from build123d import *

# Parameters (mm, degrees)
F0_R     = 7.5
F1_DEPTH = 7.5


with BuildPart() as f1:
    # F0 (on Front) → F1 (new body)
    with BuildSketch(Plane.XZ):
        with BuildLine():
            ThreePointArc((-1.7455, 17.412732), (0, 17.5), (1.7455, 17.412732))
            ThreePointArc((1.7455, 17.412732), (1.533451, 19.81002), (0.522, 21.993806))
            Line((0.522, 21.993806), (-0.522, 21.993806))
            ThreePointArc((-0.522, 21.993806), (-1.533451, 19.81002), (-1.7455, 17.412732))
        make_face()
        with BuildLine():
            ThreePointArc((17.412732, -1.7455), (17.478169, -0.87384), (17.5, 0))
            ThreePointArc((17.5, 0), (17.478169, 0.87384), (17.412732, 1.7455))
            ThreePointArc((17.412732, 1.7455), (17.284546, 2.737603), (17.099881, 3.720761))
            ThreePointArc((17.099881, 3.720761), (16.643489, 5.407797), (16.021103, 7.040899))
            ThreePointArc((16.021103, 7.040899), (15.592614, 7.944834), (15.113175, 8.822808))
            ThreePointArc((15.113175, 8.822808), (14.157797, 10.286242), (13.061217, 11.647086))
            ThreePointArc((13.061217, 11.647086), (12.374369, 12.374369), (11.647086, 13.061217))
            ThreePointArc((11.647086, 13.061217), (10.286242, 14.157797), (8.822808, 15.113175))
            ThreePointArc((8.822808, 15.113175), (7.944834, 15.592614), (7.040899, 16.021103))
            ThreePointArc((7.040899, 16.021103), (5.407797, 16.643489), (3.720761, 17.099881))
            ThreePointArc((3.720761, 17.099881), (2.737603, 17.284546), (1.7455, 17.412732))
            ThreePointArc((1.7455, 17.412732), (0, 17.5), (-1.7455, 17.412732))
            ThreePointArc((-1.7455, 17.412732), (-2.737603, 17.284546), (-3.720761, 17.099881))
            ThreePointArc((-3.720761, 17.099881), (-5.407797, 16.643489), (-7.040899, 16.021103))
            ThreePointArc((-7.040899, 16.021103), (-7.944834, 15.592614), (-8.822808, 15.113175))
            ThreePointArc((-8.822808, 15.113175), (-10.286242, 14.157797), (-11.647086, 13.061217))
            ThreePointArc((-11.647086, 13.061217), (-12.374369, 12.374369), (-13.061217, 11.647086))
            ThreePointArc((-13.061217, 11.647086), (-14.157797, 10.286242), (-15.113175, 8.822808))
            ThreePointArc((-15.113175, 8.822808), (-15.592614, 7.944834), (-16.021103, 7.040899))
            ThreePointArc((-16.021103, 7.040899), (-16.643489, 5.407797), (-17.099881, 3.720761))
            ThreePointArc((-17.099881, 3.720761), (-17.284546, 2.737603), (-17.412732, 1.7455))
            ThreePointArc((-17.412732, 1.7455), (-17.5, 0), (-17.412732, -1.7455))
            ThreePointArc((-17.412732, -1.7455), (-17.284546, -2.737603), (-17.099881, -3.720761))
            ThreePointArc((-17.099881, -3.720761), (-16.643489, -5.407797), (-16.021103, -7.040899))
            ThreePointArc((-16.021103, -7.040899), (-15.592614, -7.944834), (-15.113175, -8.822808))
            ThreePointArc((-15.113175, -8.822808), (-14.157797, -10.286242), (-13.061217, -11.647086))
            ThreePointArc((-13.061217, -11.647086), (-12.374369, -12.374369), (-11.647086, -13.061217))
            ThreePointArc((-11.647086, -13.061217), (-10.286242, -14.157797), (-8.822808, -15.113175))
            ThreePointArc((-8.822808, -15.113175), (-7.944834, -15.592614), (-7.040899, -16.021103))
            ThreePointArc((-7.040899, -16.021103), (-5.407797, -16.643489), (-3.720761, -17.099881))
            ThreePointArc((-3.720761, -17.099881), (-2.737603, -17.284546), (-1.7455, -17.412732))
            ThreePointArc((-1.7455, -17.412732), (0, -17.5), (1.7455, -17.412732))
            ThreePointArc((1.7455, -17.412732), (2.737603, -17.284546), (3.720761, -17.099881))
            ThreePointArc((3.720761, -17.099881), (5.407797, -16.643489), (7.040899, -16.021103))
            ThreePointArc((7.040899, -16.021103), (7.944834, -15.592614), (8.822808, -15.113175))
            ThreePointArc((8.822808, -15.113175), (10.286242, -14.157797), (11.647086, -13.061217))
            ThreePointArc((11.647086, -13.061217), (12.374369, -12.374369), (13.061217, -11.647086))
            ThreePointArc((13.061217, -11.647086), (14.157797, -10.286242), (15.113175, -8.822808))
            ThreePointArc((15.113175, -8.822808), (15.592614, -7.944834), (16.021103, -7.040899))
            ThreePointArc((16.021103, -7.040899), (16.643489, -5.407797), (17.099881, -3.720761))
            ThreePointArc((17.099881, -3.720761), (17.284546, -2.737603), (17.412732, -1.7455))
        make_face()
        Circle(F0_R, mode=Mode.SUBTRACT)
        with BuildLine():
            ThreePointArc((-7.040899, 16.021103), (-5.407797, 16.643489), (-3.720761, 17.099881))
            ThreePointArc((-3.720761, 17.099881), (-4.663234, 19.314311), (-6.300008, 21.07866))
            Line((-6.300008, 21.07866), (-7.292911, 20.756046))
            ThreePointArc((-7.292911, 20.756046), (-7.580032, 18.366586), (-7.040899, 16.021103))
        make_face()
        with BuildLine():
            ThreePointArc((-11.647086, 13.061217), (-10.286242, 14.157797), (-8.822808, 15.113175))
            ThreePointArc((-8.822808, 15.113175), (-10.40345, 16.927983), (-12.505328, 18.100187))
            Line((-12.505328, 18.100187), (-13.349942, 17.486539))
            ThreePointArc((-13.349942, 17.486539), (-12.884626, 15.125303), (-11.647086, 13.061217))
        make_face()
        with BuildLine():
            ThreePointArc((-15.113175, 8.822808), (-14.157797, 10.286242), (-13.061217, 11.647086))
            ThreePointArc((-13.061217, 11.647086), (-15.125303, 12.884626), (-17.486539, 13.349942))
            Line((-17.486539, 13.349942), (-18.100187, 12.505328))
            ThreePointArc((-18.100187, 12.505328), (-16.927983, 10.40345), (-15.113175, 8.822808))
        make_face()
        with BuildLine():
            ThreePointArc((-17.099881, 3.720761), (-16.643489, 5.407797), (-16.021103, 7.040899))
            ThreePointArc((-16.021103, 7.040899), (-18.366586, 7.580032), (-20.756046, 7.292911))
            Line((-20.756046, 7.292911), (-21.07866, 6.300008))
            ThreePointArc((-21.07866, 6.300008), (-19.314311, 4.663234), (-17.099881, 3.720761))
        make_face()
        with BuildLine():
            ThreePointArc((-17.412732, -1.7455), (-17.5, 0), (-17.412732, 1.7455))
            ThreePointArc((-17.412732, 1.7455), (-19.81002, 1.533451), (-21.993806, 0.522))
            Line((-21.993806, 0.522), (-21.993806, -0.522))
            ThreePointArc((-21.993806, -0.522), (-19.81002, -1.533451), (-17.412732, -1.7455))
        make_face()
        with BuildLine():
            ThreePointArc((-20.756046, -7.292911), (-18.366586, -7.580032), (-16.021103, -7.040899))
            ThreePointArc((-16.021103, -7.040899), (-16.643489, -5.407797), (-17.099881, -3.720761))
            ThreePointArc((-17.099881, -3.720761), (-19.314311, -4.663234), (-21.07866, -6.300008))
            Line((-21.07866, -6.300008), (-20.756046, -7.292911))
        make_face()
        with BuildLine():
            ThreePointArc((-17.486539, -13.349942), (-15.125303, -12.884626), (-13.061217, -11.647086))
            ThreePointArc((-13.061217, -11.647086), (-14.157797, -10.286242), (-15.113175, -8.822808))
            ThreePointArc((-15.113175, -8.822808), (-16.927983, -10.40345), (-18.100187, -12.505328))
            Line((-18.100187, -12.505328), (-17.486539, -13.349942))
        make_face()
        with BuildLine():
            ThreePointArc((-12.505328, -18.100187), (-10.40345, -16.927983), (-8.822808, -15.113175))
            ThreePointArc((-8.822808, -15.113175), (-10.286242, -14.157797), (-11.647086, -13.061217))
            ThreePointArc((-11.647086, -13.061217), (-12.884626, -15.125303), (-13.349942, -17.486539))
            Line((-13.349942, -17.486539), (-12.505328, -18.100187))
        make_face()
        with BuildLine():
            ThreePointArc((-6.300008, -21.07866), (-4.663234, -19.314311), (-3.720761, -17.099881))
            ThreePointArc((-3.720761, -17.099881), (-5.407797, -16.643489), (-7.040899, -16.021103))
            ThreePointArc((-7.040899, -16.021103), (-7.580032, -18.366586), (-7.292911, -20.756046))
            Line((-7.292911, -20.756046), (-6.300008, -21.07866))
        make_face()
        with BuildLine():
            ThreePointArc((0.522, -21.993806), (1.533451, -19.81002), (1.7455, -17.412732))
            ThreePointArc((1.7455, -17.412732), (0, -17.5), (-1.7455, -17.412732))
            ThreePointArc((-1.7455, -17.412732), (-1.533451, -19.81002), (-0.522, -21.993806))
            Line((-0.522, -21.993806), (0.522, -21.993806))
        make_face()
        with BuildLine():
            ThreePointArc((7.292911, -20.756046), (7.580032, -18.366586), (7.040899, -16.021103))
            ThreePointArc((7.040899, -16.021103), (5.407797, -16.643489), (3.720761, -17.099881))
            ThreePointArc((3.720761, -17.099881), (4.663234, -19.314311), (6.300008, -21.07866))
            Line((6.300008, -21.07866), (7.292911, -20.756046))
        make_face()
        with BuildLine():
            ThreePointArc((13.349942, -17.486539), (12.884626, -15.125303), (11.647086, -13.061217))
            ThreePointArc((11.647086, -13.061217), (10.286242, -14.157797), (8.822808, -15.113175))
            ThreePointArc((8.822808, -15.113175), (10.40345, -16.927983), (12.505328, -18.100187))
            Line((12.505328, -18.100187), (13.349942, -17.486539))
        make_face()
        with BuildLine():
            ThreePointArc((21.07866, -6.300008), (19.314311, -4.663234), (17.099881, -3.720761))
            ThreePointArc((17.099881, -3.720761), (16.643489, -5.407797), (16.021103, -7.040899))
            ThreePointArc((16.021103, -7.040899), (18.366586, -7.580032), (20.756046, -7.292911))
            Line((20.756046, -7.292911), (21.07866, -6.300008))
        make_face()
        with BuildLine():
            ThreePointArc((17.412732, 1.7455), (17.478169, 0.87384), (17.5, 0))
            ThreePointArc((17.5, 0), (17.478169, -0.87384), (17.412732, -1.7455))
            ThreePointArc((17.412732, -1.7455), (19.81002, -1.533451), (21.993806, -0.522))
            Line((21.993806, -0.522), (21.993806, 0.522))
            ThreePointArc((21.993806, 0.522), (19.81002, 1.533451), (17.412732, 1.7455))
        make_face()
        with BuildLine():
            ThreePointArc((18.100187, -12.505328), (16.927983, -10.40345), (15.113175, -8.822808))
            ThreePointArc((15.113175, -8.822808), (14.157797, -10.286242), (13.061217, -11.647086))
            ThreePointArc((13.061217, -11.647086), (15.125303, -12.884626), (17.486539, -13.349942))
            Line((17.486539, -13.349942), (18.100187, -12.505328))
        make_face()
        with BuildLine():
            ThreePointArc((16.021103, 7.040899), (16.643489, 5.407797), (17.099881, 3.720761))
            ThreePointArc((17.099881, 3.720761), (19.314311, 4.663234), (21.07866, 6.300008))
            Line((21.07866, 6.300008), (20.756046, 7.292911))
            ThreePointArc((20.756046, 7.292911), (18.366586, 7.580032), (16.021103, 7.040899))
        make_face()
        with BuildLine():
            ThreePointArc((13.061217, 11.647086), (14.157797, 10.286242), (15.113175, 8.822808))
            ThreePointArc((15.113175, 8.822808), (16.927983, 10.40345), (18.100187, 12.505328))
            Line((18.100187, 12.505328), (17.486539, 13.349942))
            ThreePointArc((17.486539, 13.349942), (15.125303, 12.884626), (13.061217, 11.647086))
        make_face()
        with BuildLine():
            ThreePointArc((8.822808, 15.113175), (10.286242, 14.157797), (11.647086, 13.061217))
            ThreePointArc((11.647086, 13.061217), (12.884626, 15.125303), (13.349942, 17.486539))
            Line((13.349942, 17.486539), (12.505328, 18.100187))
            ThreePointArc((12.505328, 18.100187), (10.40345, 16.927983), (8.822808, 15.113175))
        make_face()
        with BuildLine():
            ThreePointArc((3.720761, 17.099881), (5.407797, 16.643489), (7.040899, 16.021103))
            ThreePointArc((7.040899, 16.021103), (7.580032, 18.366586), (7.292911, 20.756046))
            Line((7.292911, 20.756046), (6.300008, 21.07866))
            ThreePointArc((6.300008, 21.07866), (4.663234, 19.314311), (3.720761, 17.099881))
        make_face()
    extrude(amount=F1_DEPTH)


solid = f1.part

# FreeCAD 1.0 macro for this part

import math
import FreeCAD as App
import Part
import Sketcher
Q = App.Units.Quantity

doc = App.newDocument("Part")
body = doc.addObject("PartDesign::Body", "Body")

sketch1 = body.newObject("Sketcher::SketchObject", "Sketch")
sketch1.AttachmentSupport = (doc.getObject("XZ_Plane"), [""])
sketch1.MapMode = "FlatFace"
sketch1.addGeometry([
    Part.ArcOfCircle(Part.Circle(App.Vector(-5.229505, 18.003789, 0), App.Vector(0, 0, 1), 7.000003), math.radians(-4.843634), math.radians(34.750375)),
    Part.LineSegment(App.Vector(0.522, 21.993806, 0), App.Vector(-0.522, 21.993806, 0)),
    Part.ArcOfCircle(Part.Circle(App.Vector(5.229505, 18.003789, 0), App.Vector(0, 0, 1), 7.000003), math.radians(145.249625), math.radians(184.843634)),
    Part.ArcOfCircle(Part.Circle(App.Vector(0, 0.000023, 0), App.Vector(0, 0, 1), 17.499977), math.radians(95.72437), math.radians(102.275652)),
    Part.ArcOfCircle(Part.Circle(App.Vector(-10.537033, 15.506616, 0), App.Vector(0, 0, 1), 7.000004), math.radians(13.156356), math.radians(52.750364)),
    Part.LineSegment(App.Vector(-6.300008, 21.07866, 0), App.Vector(-7.292911, 20.756046, 0)),
    Part.ArcOfCircle(Part.Circle(App.Vector(-0.589936, 18.738626, 0), App.Vector(0, 0, 1), 6.99999), math.radians(163.249583), math.radians(202.843674)),
    Part.ArcOfCircle(Part.Circle(App.Vector(0.00001, -0.000018, 0), App.Vector(0, 0, 1), 17.500021), math.radians(113.724367), math.radians(120.275634)),
    Part.ArcOfCircle(Part.Circle(App.Vector(-14.813121, 11.491546, 0), App.Vector(0, 0, 1), 7.000003), math.radians(31.156359), math.radians(70.750371)),
    Part.LineSegment(App.Vector(-12.505328, 18.100187, 0), App.Vector(-13.349942, 17.486539, 0)),
    Part.ArcOfCircle(Part.Circle(App.Vector(-6.35161, 17.639196, 0), App.Vector(0, 0, 1), 6.999997), math.radians(-178.750387), math.radians(-139.156341)),
    Part.ArcOfCircle(Part.Circle(App.Vector(-0.000179, 0.000179, 0), App.Vector(0, 0, 1), 17.499747), math.radians(131.724315), math.radians(138.275685)),
    Part.ArcOfCircle(Part.Circle(App.Vector(-17.639196, 6.35161, 0), App.Vector(0, 0, 1), 6.999997), math.radians(49.156341), math.radians(88.750387)),
    Part.LineSegment(App.Vector(-17.486539, 13.349942, 0), App.Vector(-18.100187, 12.505328, 0)),
    Part.ArcOfCircle(Part.Circle(App.Vector(-11.491546, 14.813121, 0), App.Vector(0, 0, 1), 7.000003), math.radians(-160.750371), math.radians(-121.156359)),
    Part.ArcOfCircle(Part.Circle(App.Vector(0.000018, -0.00001, 0), App.Vector(0, 0, 1), 17.500021), math.radians(149.724366), math.radians(156.275633)),
    Part.ArcOfCircle(Part.Circle(App.Vector(-18.738626, 0.589936, 0), App.Vector(0, 0, 1), 6.99999), math.radians(67.156326), math.radians(106.750417)),
    Part.LineSegment(App.Vector(-20.756046, 7.292911, 0), App.Vector(-21.07866, 6.300008, 0)),
    Part.ArcOfCircle(Part.Circle(App.Vector(-15.506616, 10.537033, 0), App.Vector(0, 0, 1), 7.000004), math.radians(-142.750364), math.radians(-103.156356)),
    Part.ArcOfCircle(Part.Circle(App.Vector(-0.000023, 0, 0), App.Vector(0, 0, 1), 17.499977), math.radians(167.724348), math.radians(174.27563)),
    Part.ArcOfCircle(Part.Circle(App.Vector(-18.003789, -5.229505, 0), App.Vector(0, 0, 1), 7.000003), math.radians(85.156366), math.radians(124.750375)),
    Part.LineSegment(App.Vector(-21.993806, 0.522, 0), App.Vector(-21.993806, -0.522, 0)),
    Part.ArcOfCircle(Part.Circle(App.Vector(-18.003789, 5.229505, 0), App.Vector(0, 0, 1), 7.000003), math.radians(-124.750375), math.radians(-85.156366)),
    Part.ArcOfCircle(Part.Circle(App.Vector(-0.000023, 0, 0), App.Vector(0, 0, 1), 17.499977), math.radians(-174.27563), math.radians(-167.724348)),
    Part.ArcOfCircle(Part.Circle(App.Vector(-15.506616, -10.537033, 0), App.Vector(0, 0, 1), 7.000004), math.radians(103.156356), math.radians(142.750364)),
    Part.LineSegment(App.Vector(-21.07866, -6.300008, 0), App.Vector(-20.756046, -7.292911, 0)),
    Part.ArcOfCircle(Part.Circle(App.Vector(-18.738626, -0.589936, 0), App.Vector(0, 0, 1), 6.99999), math.radians(-106.750417), math.radians(-67.156326)),
    Part.ArcOfCircle(Part.Circle(App.Vector(0.000018, 0.00001, 0), App.Vector(0, 0, 1), 17.500021), math.radians(-156.275633), math.radians(-149.724366)),
    Part.ArcOfCircle(Part.Circle(App.Vector(-11.491546, -14.813121, 0), App.Vector(0, 0, 1), 7.000003), math.radians(121.156359), math.radians(160.750371)),
    Part.LineSegment(App.Vector(-18.100187, -12.505328, 0), App.Vector(-17.486539, -13.349942, 0)),
    Part.ArcOfCircle(Part.Circle(App.Vector(-17.639196, -6.35161, 0), App.Vector(0, 0, 1), 6.999997), math.radians(-88.750387), math.radians(-49.156341)),
    Part.ArcOfCircle(Part.Circle(App.Vector(-0.000179, -0.000179, 0), App.Vector(0, 0, 1), 17.499747), math.radians(-138.275685), math.radians(-131.724315)),
    Part.ArcOfCircle(Part.Circle(App.Vector(-6.35161, -17.639196, 0), App.Vector(0, 0, 1), 6.999997), math.radians(139.156341), math.radians(178.750387)),
    Part.LineSegment(App.Vector(-13.349942, -17.486539, 0), App.Vector(-12.505328, -18.100187, 0)),
    Part.ArcOfCircle(Part.Circle(App.Vector(-14.813121, -11.491546, 0), App.Vector(0, 0, 1), 7.000003), math.radians(-70.750371), math.radians(-31.156359)),
    Part.ArcOfCircle(Part.Circle(App.Vector(0.00001, 0.000018, 0), App.Vector(0, 0, 1), 17.500021), math.radians(-120.275634), math.radians(-113.724367)),
    Part.ArcOfCircle(Part.Circle(App.Vector(-0.589936, -18.738626, 0), App.Vector(0, 0, 1), 6.99999), math.radians(157.156326), math.radians(196.750417)),
    Part.LineSegment(App.Vector(-7.292911, -20.756046, 0), App.Vector(-6.300008, -21.07866, 0)),
    Part.ArcOfCircle(Part.Circle(App.Vector(-10.537033, -15.506616, 0), App.Vector(0, 0, 1), 7.000004), math.radians(-52.750364), math.radians(-13.156356)),
    Part.ArcOfCircle(Part.Circle(App.Vector(0, -0.000023, 0), App.Vector(0, 0, 1), 17.499977), math.radians(-102.275652), math.radians(-95.72437)),
    Part.ArcOfCircle(Part.Circle(App.Vector(5.229505, -18.003789, 0), App.Vector(0, 0, 1), 7.000003), math.radians(175.156366), math.radians(214.750375)),
    Part.LineSegment(App.Vector(-0.522, -21.993806, 0), App.Vector(0.522, -21.993806, 0)),
    Part.ArcOfCircle(Part.Circle(App.Vector(-5.229505, -18.003789, 0), App.Vector(0, 0, 1), 7.000003), math.radians(-34.750375), math.radians(4.843634)),
    Part.ArcOfCircle(Part.Circle(App.Vector(0, -0.000023, 0), App.Vector(0, 0, 1), 17.499977), math.radians(-84.27563), math.radians(-77.724348)),
    Part.ArcOfCircle(Part.Circle(App.Vector(10.537033, -15.506616, 0), App.Vector(0, 0, 1), 7.000004), math.radians(-166.843644), math.radians(-127.249636)),
    Part.LineSegment(App.Vector(6.300008, -21.07866, 0), App.Vector(7.292911, -20.756046, 0)),
    Part.ArcOfCircle(Part.Circle(App.Vector(0.589936, -18.738626, 0), App.Vector(0, 0, 1), 6.99999), math.radians(-16.750417), math.radians(22.843674)),
    Part.ArcOfCircle(Part.Circle(App.Vector(-0.00001, 0.000018, 0), App.Vector(0, 0, 1), 17.500021), math.radians(-66.275633), math.radians(-59.724366)),
    Part.ArcOfCircle(Part.Circle(App.Vector(14.813121, -11.491546, 0), App.Vector(0, 0, 1), 7.000003), math.radians(-148.843641), math.radians(-109.249629)),
    Part.LineSegment(App.Vector(12.505328, -18.100187, 0), App.Vector(13.349942, -17.486539, 0)),
    Part.ArcOfCircle(Part.Circle(App.Vector(6.35161, -17.639196, 0), App.Vector(0, 0, 1), 6.999997), math.radians(1.249613), math.radians(40.843659)),
    Part.ArcOfCircle(Part.Circle(App.Vector(0.000179, -0.000179, 0), App.Vector(0, 0, 1), 17.499747), math.radians(-48.275685), math.radians(-41.724315)),
    Part.ArcOfCircle(Part.Circle(App.Vector(17.639196, -6.35161, 0), App.Vector(0, 0, 1), 6.999997), math.radians(-130.843659), math.radians(-91.249613)),
    Part.LineSegment(App.Vector(17.486539, -13.349942, 0), App.Vector(18.100187, -12.505328, 0)),
    Part.ArcOfCircle(Part.Circle(App.Vector(11.491546, -14.813121, 0), App.Vector(0, 0, 1), 7.000003), math.radians(19.249629), math.radians(58.843641)),
    Part.ArcOfCircle(Part.Circle(App.Vector(-0.000018, 0.00001, 0), App.Vector(0, 0, 1), 17.500021), math.radians(-30.275634), math.radians(-23.724367)),
    Part.ArcOfCircle(Part.Circle(App.Vector(18.738626, -0.589936, 0), App.Vector(0, 0, 1), 6.99999), math.radians(-112.843674), math.radians(-73.249583)),
    Part.LineSegment(App.Vector(20.756046, -7.292911, 0), App.Vector(21.07866, -6.300008, 0)),
    Part.ArcOfCircle(Part.Circle(App.Vector(15.506616, -10.537033, 0), App.Vector(0, 0, 1), 7.000004), math.radians(37.249636), math.radians(76.843644)),
    Part.ArcOfCircle(Part.Circle(App.Vector(0.000023, 0, 0), App.Vector(0, 0, 1), 17.499977), math.radians(-12.275652), math.radians(-5.72437)),
    Part.ArcOfCircle(Part.Circle(App.Vector(18.003789, 5.229505, 0), App.Vector(0, 0, 1), 7.000003), math.radians(-94.843634), math.radians(-55.249625)),
    Part.LineSegment(App.Vector(21.993806, -0.522, 0), App.Vector(21.993806, 0.522, 0)),
    Part.ArcOfCircle(Part.Circle(App.Vector(18.003789, -5.229505, 0), App.Vector(0, 0, 1), 7.000003), math.radians(55.249625), math.radians(94.843634)),
    Part.ArcOfCircle(Part.Circle(App.Vector(0.000023, 0, 0), App.Vector(0, 0, 1), 17.499977), math.radians(5.72437), math.radians(12.275652)),
    Part.ArcOfCircle(Part.Circle(App.Vector(15.506616, 10.537033, 0), App.Vector(0, 0, 1), 7.000004), math.radians(-76.843644), math.radians(-37.249636)),
    Part.LineSegment(App.Vector(21.07866, 6.300008, 0), App.Vector(20.756046, 7.292911, 0)),
    Part.ArcOfCircle(Part.Circle(App.Vector(18.738626, 0.589936, 0), App.Vector(0, 0, 1), 6.99999), math.radians(73.249583), math.radians(112.843674)),
    Part.ArcOfCircle(Part.Circle(App.Vector(-0.000018, -0.00001, 0), App.Vector(0, 0, 1), 17.500021), math.radians(23.724367), math.radians(30.275634)),
    Part.ArcOfCircle(Part.Circle(App.Vector(11.491546, 14.813121, 0), App.Vector(0, 0, 1), 7.000003), math.radians(-58.843641), math.radians(-19.249629)),
    Part.LineSegment(App.Vector(18.100187, 12.505328, 0), App.Vector(17.486539, 13.349942, 0)),
    Part.ArcOfCircle(Part.Circle(App.Vector(17.639196, 6.35161, 0), App.Vector(0, 0, 1), 6.999997), math.radians(91.249613), math.radians(130.843659)),
    Part.ArcOfCircle(Part.Circle(App.Vector(0.000179, 0.000179, 0), App.Vector(0, 0, 1), 17.499747), math.radians(41.724315), math.radians(48.275685)),
    Part.ArcOfCircle(Part.Circle(App.Vector(6.35161, 17.639196, 0), App.Vector(0, 0, 1), 6.999997), math.radians(-40.843659), math.radians(-1.249613)),
    Part.LineSegment(App.Vector(13.349942, 17.486539, 0), App.Vector(12.505328, 18.100187, 0)),
    Part.ArcOfCircle(Part.Circle(App.Vector(14.813121, 11.491546, 0), App.Vector(0, 0, 1), 7.000003), math.radians(109.249629), math.radians(148.843641)),
    Part.ArcOfCircle(Part.Circle(App.Vector(-0.00001, -0.000018, 0), App.Vector(0, 0, 1), 17.500021), math.radians(59.724366), math.radians(66.275633)),
    Part.ArcOfCircle(Part.Circle(App.Vector(0.589936, 18.738626, 0), App.Vector(0, 0, 1), 6.99999), math.radians(-22.843674), math.radians(16.750417)),
    Part.LineSegment(App.Vector(7.292911, 20.756046, 0), App.Vector(6.300008, 21.07866, 0)),
    Part.ArcOfCircle(Part.Circle(App.Vector(10.537033, 15.506616, 0), App.Vector(0, 0, 1), 7.000004), math.radians(127.249636), math.radians(166.843644)),
    Part.ArcOfCircle(Part.Circle(App.Vector(0, 0.000023, 0), App.Vector(0, 0, 1), 17.499977), math.radians(77.724348), math.radians(84.27563)),
    Part.Circle(App.Vector(0, 0, 0), App.Vector(0, 0, 1), 7.5),
], False)
sketch1.addConstraint([
    Sketcher.Constraint("Coincident", 0, 2, 1, 1),
    Sketcher.Constraint("Coincident", 1, 2, 2, 1),
    Sketcher.Constraint("Coincident", 2, 2, 3, 1),
    Sketcher.Constraint("Coincident", 3, 2, 4, 1),
    Sketcher.Constraint("Coincident", 4, 2, 5, 1),
    Sketcher.Constraint("Coincident", 5, 2, 6, 1),
    Sketcher.Constraint("Coincident", 6, 2, 7, 1),
    Sketcher.Constraint("Coincident", 7, 2, 8, 1),
    Sketcher.Constraint("Coincident", 8, 2, 9, 1),
    Sketcher.Constraint("Coincident", 9, 2, 10, 1),
    Sketcher.Constraint("Coincident", 10, 2, 11, 1),
    Sketcher.Constraint("Coincident", 11, 2, 12, 1),
    Sketcher.Constraint("Coincident", 12, 2, 13, 1),
    Sketcher.Constraint("Coincident", 13, 2, 14, 1),
    Sketcher.Constraint("Coincident", 14, 2, 15, 1),
    Sketcher.Constraint("Coincident", 15, 2, 16, 1),
    Sketcher.Constraint("Coincident", 16, 2, 17, 1),
    Sketcher.Constraint("Coincident", 17, 2, 18, 1),
    Sketcher.Constraint("Coincident", 18, 2, 19, 1),
    Sketcher.Constraint("Coincident", 19, 2, 20, 1),
    Sketcher.Constraint("Coincident", 20, 2, 21, 1),
    Sketcher.Constraint("Coincident", 21, 2, 22, 1),
    Sketcher.Constraint("Coincident", 22, 2, 23, 1),
    Sketcher.Constraint("Coincident", 23, 2, 24, 1),
    Sketcher.Constraint("Coincident", 24, 2, 25, 1),
    Sketcher.Constraint("Coincident", 25, 2, 26, 1),
    Sketcher.Constraint("Coincident", 26, 2, 27, 1),
    Sketcher.Constraint("Coincident", 27, 2, 28, 1),
    Sketcher.Constraint("Coincident", 28, 2, 29, 1),
    Sketcher.Constraint("Coincident", 29, 2, 30, 1),
    Sketcher.Constraint("Coincident", 30, 2, 31, 1),
    Sketcher.Constraint("Coincident", 31, 2, 32, 1),
    Sketcher.Constraint("Coincident", 32, 2, 33, 1),
    Sketcher.Constraint("Coincident", 33, 2, 34, 1),
    Sketcher.Constraint("Coincident", 34, 2, 35, 1),
    Sketcher.Constraint("Coincident", 35, 2, 36, 1),
    Sketcher.Constraint("Coincident", 36, 2, 37, 1),
    Sketcher.Constraint("Coincident", 37, 2, 38, 1),
    Sketcher.Constraint("Coincident", 38, 2, 39, 1),
    Sketcher.Constraint("Coincident", 39, 2, 40, 1),
    Sketcher.Constraint("Coincident", 40, 2, 41, 1),
    Sketcher.Constraint("Coincident", 41, 2, 42, 1),
    Sketcher.Constraint("Coincident", 42, 2, 43, 1),
    Sketcher.Constraint("Coincident", 43, 2, 44, 1),
    Sketcher.Constraint("Coincident", 44, 2, 45, 1),
    Sketcher.Constraint("Coincident", 45, 2, 46, 1),
    Sketcher.Constraint("Coincident", 46, 2, 47, 1),
    Sketcher.Constraint("Coincident", 47, 2, 48, 1),
    Sketcher.Constraint("Coincident", 48, 2, 49, 1),
    Sketcher.Constraint("Coincident", 49, 2, 50, 1),
    Sketcher.Constraint("Coincident", 50, 2, 51, 1),
    Sketcher.Constraint("Coincident", 51, 2, 52, 1),
    Sketcher.Constraint("Coincident", 52, 2, 53, 1),
    Sketcher.Constraint("Coincident", 53, 2, 54, 1),
    Sketcher.Constraint("Coincident", 54, 2, 55, 1),
    Sketcher.Constraint("Coincident", 55, 2, 56, 1),
    Sketcher.Constraint("Coincident", 56, 2, 57, 1),
    Sketcher.Constraint("Coincident", 57, 2, 58, 1),
    Sketcher.Constraint("Coincident", 58, 2, 59, 1),
    Sketcher.Constraint("Coincident", 59, 2, 60, 1),
    Sketcher.Constraint("Coincident", 60, 2, 61, 1),
    Sketcher.Constraint("Coincident", 61, 2, 62, 1),
    Sketcher.Constraint("Coincident", 62, 2, 63, 1),
    Sketcher.Constraint("Coincident", 63, 2, 64, 1),
    Sketcher.Constraint("Coincident", 64, 2, 65, 1),
    Sketcher.Constraint("Coincident", 65, 2, 66, 1),
    Sketcher.Constraint("Coincident", 66, 2, 67, 1),
    Sketcher.Constraint("Coincident", 67, 2, 68, 1),
    Sketcher.Constraint("Coincident", 68, 2, 69, 1),
    Sketcher.Constraint("Coincident", 69, 2, 70, 1),
    Sketcher.Constraint("Coincident", 70, 2, 71, 1),
    Sketcher.Constraint("Coincident", 71, 2, 72, 1),
    Sketcher.Constraint("Coincident", 72, 2, 73, 1),
    Sketcher.Constraint("Coincident", 73, 2, 74, 1),
    Sketcher.Constraint("Coincident", 74, 2, 75, 1),
    Sketcher.Constraint("Coincident", 75, 2, 76, 1),
    Sketcher.Constraint("Coincident", 76, 2, 77, 1),
    Sketcher.Constraint("Coincident", 77, 2, 78, 1),
    Sketcher.Constraint("Coincident", 78, 2, 79, 1),
    Sketcher.Constraint("Coincident", 79, 2, 0, 1),
    Sketcher.Constraint("Horizontal", 1),
    Sketcher.Constraint("Vertical", 21),
    Sketcher.Constraint("Horizontal", 41),
    Sketcher.Constraint("Vertical", 61),
    Sketcher.Constraint("Coincident", 80, 3, -1, 1),
    Sketcher.Constraint("Coincident", 23, 3, 19, 3),
    Sketcher.Constraint("Coincident", 43, 3, 39, 3),
    Sketcher.Constraint("Coincident", 63, 3, 59, 3),
    Sketcher.Constraint("Coincident", 79, 3, 3, 3),
    Sketcher.Constraint("Equal", 0, 2),
    Sketcher.Constraint("Equal", 2, 4),
    Sketcher.Constraint("Equal", 4, 8),
    Sketcher.Constraint("Equal", 10, 12),
    Sketcher.Constraint("Equal", 8, 14),
    Sketcher.Constraint("Equal", 7, 15),
    Sketcher.Constraint("Equal", 6, 16),
    Sketcher.Constraint("Equal", 14, 18),
    Sketcher.Constraint("Equal", 3, 19),
    Sketcher.Constraint("Equal", 18, 20),
    Sketcher.Constraint("Equal", 20, 22),
    Sketcher.Constraint("Equal", 19, 23),
    Sketcher.Constraint("Equal", 22, 24),
    Sketcher.Constraint("Equal", 16, 26),
    Sketcher.Constraint("Equal", 15, 27),
    Sketcher.Constraint("Equal", 24, 28),
    Sketcher.Constraint("Equal", 12, 30),
    Sketcher.Constraint("Equal", 11, 31),
    Sketcher.Constraint("Equal", 30, 32),
    Sketcher.Constraint("Equal", 28, 34),
    Sketcher.Constraint("Equal", 27, 35),
    Sketcher.Constraint("Equal", 26, 36),
    Sketcher.Constraint("Equal", 34, 38),
    Sketcher.Constraint("Equal", 23, 39),
    Sketcher.Constraint("Equal", 38, 40),
    Sketcher.Constraint("Equal", 40, 42),
    Sketcher.Constraint("Equal", 39, 43),
    Sketcher.Constraint("Equal", 42, 44),
    Sketcher.Constraint("Equal", 36, 46),
    Sketcher.Constraint("Equal", 35, 47),
    Sketcher.Constraint("Equal", 44, 48),
    Sketcher.Constraint("Equal", 32, 50),
    Sketcher.Constraint("Equal", 31, 51),
    Sketcher.Constraint("Equal", 50, 52),
    Sketcher.Constraint("Equal", 48, 54),
    Sketcher.Constraint("Equal", 47, 55),
    Sketcher.Constraint("Equal", 46, 56),
    Sketcher.Constraint("Equal", 54, 58),
    Sketcher.Constraint("Equal", 43, 59),
    Sketcher.Constraint("Equal", 58, 60),
    Sketcher.Constraint("Equal", 60, 62),
    Sketcher.Constraint("Equal", 59, 63),
    Sketcher.Constraint("Equal", 62, 64),
    Sketcher.Constraint("Equal", 56, 66),
    Sketcher.Constraint("Equal", 55, 67),
    Sketcher.Constraint("Equal", 64, 68),
    Sketcher.Constraint("Equal", 52, 70),
    Sketcher.Constraint("Equal", 51, 71),
    Sketcher.Constraint("Equal", 70, 72),
    Sketcher.Constraint("Equal", 68, 74),
    Sketcher.Constraint("Equal", 67, 75),
    Sketcher.Constraint("Equal", 66, 76),
    Sketcher.Constraint("Equal", 74, 78),
    Sketcher.Constraint("Equal", 63, 79),
    Sketcher.Constraint("Symmetric", 3, 3, 39, 3, -1, 1),
    Sketcher.Constraint("Symmetric", 0, 3, 40, 3, -1, 1),
    Sketcher.Constraint("Symmetric", 2, 3, 42, 3, -1, 1),
    Sketcher.Constraint("Symmetric", 4, 3, 44, 3, -1, 1),
    Sketcher.Constraint("Symmetric", 6, 3, 46, 3, -1, 1),
    Sketcher.Constraint("Symmetric", 7, 3, 47, 3, -1, 1),
    Sketcher.Constraint("Symmetric", 8, 3, 48, 3, -1, 1),
    Sketcher.Constraint("Symmetric", 10, 3, 50, 3, -1, 1),
    Sketcher.Constraint("Symmetric", 11, 3, 51, 3, -1, 1),
    Sketcher.Constraint("Symmetric", 12, 3, 52, 3, -1, 1),
    Sketcher.Constraint("Symmetric", 14, 3, 54, 3, -1, 1),
    Sketcher.Constraint("Symmetric", 15, 3, 55, 3, -1, 1),
    Sketcher.Constraint("Symmetric", 16, 3, 56, 3, -1, 1),
    Sketcher.Constraint("Symmetric", 18, 3, 58, 3, -1, 1),
    Sketcher.Constraint("Symmetric", 19, 3, 59, 3, -1, 1),
    Sketcher.Constraint("Symmetric", 20, 3, 60, 3, -1, 1),
    Sketcher.Constraint("Symmetric", 22, 3, 62, 3, -1, 1),
    Sketcher.Constraint("Symmetric", 24, 3, 64, 3, -1, 1),
    Sketcher.Constraint("Symmetric", 26, 3, 66, 3, -1, 1),
    Sketcher.Constraint("Symmetric", 27, 3, 67, 3, -1, 1),
    Sketcher.Constraint("Symmetric", 28, 3, 68, 3, -1, 1),
    Sketcher.Constraint("Symmetric", 30, 3, 70, 3, -1, 1),
    Sketcher.Constraint("Symmetric", 31, 3, 71, 3, -1, 1),
    Sketcher.Constraint("Symmetric", 32, 3, 72, 3, -1, 1),
    Sketcher.Constraint("Symmetric", 34, 3, 74, 3, -1, 1),
    Sketcher.Constraint("Symmetric", 35, 3, 75, 3, -1, 1),
    Sketcher.Constraint("Symmetric", 36, 3, 76, 3, -1, 1),
    Sketcher.Constraint("Symmetric", 38, 3, 78, 3, -1, 1),
    Sketcher.Constraint("Symmetric", 0, 3, 2, 3, -2),
    Sketcher.Constraint("Symmetric", 38, 3, 44, 3, -2),
    Sketcher.Constraint("Symmetric", 36, 3, 46, 3, -2),
    Sketcher.Constraint("Symmetric", 35, 3, 47, 3, -2),
    Sketcher.Constraint("Symmetric", 34, 3, 48, 3, -2),
    Sketcher.Constraint("Symmetric", 32, 3, 50, 3, -2),
    Sketcher.Constraint("Symmetric", 31, 3, 51, 3, -2),
    Sketcher.Constraint("Symmetric", 30, 3, 52, 3, -2),
    Sketcher.Constraint("Symmetric", 28, 3, 54, 3, -2),
    Sketcher.Constraint("Symmetric", 27, 3, 55, 3, -2),
    Sketcher.Constraint("Symmetric", 26, 3, 56, 3, -2),
    Sketcher.Constraint("Symmetric", 24, 3, 58, 3, -2),
    Sketcher.Constraint("Symmetric", 22, 3, 60, 3, -2),
    Sketcher.Constraint("PointOnObject", 3, 3, -2),
    Sketcher.Constraint("PointOnObject", 19, 3, -1),
    Sketcher.Constraint("Perpendicular", 5, 25),
    Sketcher.Constraint("Perpendicular", 9, 29),
    Sketcher.Constraint("Perpendicular", 13, 33),
    Sketcher.Constraint("Perpendicular", 17, 37),
    Sketcher.Constraint("Perpendicular", 25, 45),
    Sketcher.Constraint("Perpendicular", 29, 49),
    Sketcher.Constraint("Perpendicular", 33, 53),
    Sketcher.Constraint("Perpendicular", 37, 57),
    Sketcher.Constraint("Perpendicular", 45, 65),
    Sketcher.Constraint("Perpendicular", 49, 69),
    Sketcher.Constraint("Perpendicular", 53, 73),
    Sketcher.Constraint("Perpendicular", 57, 77),
    Sketcher.Constraint("Horizontal", 37, 2, 44, 2),
    Sketcher.Constraint("Horizontal", 36, 2, 45, 2),
    Sketcher.Constraint("Horizontal", 33, 2, 48, 2),
    Sketcher.Constraint("Horizontal", 32, 2, 49, 2),
    Sketcher.Constraint("Horizontal", 29, 2, 52, 2),
    Sketcher.Constraint("Horizontal", 25, 2, 56, 2),
    Sketcher.Constraint("Horizontal", 21, 2, 60, 2),
    Sketcher.Constraint("Horizontal", 17, 2, 64, 2),
    Sketcher.Constraint("Horizontal", 13, 2, 68, 2),
    Sketcher.Constraint("Horizontal", 9, 2, 72, 2),
    Sketcher.Constraint("Horizontal", 5, 2, 76, 2),
    Sketcher.Constraint("Vertical", 17, 2, 24, 2),
    Sketcher.Constraint("Vertical", 13, 2, 28, 2),
    Sketcher.Constraint("Vertical", 9, 2, 32, 2),
    Sketcher.Constraint("Vertical", 5, 2, 36, 2),
    Sketcher.Constraint("Vertical", 1, 2, 40, 2),
    Sketcher.Constraint("Equal", 41, 21),
    Sketcher.Constraint("Equal", 5, 9),
    Sketcher.Constraint("Equal", 9, 13),
    Sketcher.Constraint("Equal", 13, 17),
    Sketcher.Constraint("Diameter", 80, Q("15 mm")),
    Sketcher.Constraint("Angle", 5, Q("-161.999986 deg")),
    Sketcher.Constraint("Angle", 9, Q("-144 deg")),
    Sketcher.Constraint("DistanceX", 1, 2, 1, 1, Q("1.044 mm")),
    Sketcher.Constraint("Radius", 6, Q("6.99999 mm")),
    Sketcher.Constraint("Radius", 7, Q("17.500021 mm")),
    Sketcher.Constraint("Distance", 5, Q("1.044 mm")),
    Sketcher.Constraint("Radius", 0, Q("7.000003 mm")),
    Sketcher.Constraint("Radius", 3, Q("17.499977 mm")),
    Sketcher.Constraint("Radius", 10, Q("6.999997 mm")),
    Sketcher.Constraint("Radius", 11, Q("17.499747 mm")),
    Sketcher.Constraint("DistanceX", 2, 2, -1, 1, Q("1.7455 mm")),
    Sketcher.Constraint("DistanceX", 6, 2, -1, 1, Q("7.040899 mm")),
    Sketcher.Constraint("DistanceY", -1, 1, 15, 2, Q("7.040899 mm")),
    Sketcher.Constraint("DistanceY", -1, 1, 19, 2, Q("1.7455 mm")),
    Sketcher.Constraint("DistanceY", -1, 1, 0, 3, Q("18.003789 mm")),
    Sketcher.Constraint("DistanceX", 8, 3, -1, 1, Q("14.813121 mm")),
    Sketcher.Constraint("DistanceX", 10, 3, -1, 1, Q("6.35161 mm")),
    Sketcher.Constraint("DistanceX", 11, 3, -1, 1, Q("0.000179 mm")),
    Sketcher.Constraint("DistanceY", -1, 1, 11, 3, Q("0.000179 mm")),
    Sketcher.Constraint("DistanceY", -1, 1, 12, 3, Q("6.35161 mm")),
    Sketcher.Constraint("DistanceY", -1, 1, 14, 3, Q("14.813121 mm")),
    Sketcher.Constraint("DistanceX", 20, 3, -1, 1, Q("18.003789 mm")),
    Sketcher.Constraint("DistanceY", -1, 1, 2, 2, Q("17.412732 mm")),
    Sketcher.Constraint("DistanceX", 3, 2, -1, 1, Q("3.720761 mm")),
    Sketcher.Constraint("DistanceX", 4, 2, -1, 1, Q("6.300008 mm")),
    Sketcher.Constraint("DistanceY", -1, 1, 4, 2, Q("21.07866 mm")),
    Sketcher.Constraint("DistanceY", -1, 1, 9, 2, Q("17.486539 mm")),
    Sketcher.Constraint("DistanceX", 12, 2, -1, 1, Q("17.486539 mm")),
    Sketcher.Constraint("DistanceY", -1, 1, 12, 2, Q("13.349942 mm")),
    Sketcher.Constraint("DistanceY", -1, 1, 14, 2, Q("8.822808 mm")),
    Sketcher.Constraint("DistanceY", -1, 1, 16, 2, Q("7.292911 mm")),
    Sketcher.Constraint("DistanceX", 17, 2, -1, 1, Q("21.07866 mm")),
    Sketcher.Constraint("DistanceX", 18, 2, -1, 1, Q("17.099881 mm")),
    Sketcher.Constraint("DistanceY", -1, 1, 18, 2, Q("3.720761 mm")),
    Sketcher.Constraint("DistanceX", 32, 2, -1, 1, Q("13.349942 mm")),
    Sketcher.Constraint("DistanceX", 34, 2, -1, 1, Q("8.822808 mm")),
    Sketcher.Constraint("DistanceX", 6, 3, -1, 1, Q("0.589936 mm")),
    Sketcher.Constraint("DistanceX", 16, 3, -1, 1, Q("18.738626 mm")),
])
pad1 = body.newObject("PartDesign::Pad", "Pad")
pad1.Profile = sketch1
pad1.Length = 7.5

doc.recompute()
